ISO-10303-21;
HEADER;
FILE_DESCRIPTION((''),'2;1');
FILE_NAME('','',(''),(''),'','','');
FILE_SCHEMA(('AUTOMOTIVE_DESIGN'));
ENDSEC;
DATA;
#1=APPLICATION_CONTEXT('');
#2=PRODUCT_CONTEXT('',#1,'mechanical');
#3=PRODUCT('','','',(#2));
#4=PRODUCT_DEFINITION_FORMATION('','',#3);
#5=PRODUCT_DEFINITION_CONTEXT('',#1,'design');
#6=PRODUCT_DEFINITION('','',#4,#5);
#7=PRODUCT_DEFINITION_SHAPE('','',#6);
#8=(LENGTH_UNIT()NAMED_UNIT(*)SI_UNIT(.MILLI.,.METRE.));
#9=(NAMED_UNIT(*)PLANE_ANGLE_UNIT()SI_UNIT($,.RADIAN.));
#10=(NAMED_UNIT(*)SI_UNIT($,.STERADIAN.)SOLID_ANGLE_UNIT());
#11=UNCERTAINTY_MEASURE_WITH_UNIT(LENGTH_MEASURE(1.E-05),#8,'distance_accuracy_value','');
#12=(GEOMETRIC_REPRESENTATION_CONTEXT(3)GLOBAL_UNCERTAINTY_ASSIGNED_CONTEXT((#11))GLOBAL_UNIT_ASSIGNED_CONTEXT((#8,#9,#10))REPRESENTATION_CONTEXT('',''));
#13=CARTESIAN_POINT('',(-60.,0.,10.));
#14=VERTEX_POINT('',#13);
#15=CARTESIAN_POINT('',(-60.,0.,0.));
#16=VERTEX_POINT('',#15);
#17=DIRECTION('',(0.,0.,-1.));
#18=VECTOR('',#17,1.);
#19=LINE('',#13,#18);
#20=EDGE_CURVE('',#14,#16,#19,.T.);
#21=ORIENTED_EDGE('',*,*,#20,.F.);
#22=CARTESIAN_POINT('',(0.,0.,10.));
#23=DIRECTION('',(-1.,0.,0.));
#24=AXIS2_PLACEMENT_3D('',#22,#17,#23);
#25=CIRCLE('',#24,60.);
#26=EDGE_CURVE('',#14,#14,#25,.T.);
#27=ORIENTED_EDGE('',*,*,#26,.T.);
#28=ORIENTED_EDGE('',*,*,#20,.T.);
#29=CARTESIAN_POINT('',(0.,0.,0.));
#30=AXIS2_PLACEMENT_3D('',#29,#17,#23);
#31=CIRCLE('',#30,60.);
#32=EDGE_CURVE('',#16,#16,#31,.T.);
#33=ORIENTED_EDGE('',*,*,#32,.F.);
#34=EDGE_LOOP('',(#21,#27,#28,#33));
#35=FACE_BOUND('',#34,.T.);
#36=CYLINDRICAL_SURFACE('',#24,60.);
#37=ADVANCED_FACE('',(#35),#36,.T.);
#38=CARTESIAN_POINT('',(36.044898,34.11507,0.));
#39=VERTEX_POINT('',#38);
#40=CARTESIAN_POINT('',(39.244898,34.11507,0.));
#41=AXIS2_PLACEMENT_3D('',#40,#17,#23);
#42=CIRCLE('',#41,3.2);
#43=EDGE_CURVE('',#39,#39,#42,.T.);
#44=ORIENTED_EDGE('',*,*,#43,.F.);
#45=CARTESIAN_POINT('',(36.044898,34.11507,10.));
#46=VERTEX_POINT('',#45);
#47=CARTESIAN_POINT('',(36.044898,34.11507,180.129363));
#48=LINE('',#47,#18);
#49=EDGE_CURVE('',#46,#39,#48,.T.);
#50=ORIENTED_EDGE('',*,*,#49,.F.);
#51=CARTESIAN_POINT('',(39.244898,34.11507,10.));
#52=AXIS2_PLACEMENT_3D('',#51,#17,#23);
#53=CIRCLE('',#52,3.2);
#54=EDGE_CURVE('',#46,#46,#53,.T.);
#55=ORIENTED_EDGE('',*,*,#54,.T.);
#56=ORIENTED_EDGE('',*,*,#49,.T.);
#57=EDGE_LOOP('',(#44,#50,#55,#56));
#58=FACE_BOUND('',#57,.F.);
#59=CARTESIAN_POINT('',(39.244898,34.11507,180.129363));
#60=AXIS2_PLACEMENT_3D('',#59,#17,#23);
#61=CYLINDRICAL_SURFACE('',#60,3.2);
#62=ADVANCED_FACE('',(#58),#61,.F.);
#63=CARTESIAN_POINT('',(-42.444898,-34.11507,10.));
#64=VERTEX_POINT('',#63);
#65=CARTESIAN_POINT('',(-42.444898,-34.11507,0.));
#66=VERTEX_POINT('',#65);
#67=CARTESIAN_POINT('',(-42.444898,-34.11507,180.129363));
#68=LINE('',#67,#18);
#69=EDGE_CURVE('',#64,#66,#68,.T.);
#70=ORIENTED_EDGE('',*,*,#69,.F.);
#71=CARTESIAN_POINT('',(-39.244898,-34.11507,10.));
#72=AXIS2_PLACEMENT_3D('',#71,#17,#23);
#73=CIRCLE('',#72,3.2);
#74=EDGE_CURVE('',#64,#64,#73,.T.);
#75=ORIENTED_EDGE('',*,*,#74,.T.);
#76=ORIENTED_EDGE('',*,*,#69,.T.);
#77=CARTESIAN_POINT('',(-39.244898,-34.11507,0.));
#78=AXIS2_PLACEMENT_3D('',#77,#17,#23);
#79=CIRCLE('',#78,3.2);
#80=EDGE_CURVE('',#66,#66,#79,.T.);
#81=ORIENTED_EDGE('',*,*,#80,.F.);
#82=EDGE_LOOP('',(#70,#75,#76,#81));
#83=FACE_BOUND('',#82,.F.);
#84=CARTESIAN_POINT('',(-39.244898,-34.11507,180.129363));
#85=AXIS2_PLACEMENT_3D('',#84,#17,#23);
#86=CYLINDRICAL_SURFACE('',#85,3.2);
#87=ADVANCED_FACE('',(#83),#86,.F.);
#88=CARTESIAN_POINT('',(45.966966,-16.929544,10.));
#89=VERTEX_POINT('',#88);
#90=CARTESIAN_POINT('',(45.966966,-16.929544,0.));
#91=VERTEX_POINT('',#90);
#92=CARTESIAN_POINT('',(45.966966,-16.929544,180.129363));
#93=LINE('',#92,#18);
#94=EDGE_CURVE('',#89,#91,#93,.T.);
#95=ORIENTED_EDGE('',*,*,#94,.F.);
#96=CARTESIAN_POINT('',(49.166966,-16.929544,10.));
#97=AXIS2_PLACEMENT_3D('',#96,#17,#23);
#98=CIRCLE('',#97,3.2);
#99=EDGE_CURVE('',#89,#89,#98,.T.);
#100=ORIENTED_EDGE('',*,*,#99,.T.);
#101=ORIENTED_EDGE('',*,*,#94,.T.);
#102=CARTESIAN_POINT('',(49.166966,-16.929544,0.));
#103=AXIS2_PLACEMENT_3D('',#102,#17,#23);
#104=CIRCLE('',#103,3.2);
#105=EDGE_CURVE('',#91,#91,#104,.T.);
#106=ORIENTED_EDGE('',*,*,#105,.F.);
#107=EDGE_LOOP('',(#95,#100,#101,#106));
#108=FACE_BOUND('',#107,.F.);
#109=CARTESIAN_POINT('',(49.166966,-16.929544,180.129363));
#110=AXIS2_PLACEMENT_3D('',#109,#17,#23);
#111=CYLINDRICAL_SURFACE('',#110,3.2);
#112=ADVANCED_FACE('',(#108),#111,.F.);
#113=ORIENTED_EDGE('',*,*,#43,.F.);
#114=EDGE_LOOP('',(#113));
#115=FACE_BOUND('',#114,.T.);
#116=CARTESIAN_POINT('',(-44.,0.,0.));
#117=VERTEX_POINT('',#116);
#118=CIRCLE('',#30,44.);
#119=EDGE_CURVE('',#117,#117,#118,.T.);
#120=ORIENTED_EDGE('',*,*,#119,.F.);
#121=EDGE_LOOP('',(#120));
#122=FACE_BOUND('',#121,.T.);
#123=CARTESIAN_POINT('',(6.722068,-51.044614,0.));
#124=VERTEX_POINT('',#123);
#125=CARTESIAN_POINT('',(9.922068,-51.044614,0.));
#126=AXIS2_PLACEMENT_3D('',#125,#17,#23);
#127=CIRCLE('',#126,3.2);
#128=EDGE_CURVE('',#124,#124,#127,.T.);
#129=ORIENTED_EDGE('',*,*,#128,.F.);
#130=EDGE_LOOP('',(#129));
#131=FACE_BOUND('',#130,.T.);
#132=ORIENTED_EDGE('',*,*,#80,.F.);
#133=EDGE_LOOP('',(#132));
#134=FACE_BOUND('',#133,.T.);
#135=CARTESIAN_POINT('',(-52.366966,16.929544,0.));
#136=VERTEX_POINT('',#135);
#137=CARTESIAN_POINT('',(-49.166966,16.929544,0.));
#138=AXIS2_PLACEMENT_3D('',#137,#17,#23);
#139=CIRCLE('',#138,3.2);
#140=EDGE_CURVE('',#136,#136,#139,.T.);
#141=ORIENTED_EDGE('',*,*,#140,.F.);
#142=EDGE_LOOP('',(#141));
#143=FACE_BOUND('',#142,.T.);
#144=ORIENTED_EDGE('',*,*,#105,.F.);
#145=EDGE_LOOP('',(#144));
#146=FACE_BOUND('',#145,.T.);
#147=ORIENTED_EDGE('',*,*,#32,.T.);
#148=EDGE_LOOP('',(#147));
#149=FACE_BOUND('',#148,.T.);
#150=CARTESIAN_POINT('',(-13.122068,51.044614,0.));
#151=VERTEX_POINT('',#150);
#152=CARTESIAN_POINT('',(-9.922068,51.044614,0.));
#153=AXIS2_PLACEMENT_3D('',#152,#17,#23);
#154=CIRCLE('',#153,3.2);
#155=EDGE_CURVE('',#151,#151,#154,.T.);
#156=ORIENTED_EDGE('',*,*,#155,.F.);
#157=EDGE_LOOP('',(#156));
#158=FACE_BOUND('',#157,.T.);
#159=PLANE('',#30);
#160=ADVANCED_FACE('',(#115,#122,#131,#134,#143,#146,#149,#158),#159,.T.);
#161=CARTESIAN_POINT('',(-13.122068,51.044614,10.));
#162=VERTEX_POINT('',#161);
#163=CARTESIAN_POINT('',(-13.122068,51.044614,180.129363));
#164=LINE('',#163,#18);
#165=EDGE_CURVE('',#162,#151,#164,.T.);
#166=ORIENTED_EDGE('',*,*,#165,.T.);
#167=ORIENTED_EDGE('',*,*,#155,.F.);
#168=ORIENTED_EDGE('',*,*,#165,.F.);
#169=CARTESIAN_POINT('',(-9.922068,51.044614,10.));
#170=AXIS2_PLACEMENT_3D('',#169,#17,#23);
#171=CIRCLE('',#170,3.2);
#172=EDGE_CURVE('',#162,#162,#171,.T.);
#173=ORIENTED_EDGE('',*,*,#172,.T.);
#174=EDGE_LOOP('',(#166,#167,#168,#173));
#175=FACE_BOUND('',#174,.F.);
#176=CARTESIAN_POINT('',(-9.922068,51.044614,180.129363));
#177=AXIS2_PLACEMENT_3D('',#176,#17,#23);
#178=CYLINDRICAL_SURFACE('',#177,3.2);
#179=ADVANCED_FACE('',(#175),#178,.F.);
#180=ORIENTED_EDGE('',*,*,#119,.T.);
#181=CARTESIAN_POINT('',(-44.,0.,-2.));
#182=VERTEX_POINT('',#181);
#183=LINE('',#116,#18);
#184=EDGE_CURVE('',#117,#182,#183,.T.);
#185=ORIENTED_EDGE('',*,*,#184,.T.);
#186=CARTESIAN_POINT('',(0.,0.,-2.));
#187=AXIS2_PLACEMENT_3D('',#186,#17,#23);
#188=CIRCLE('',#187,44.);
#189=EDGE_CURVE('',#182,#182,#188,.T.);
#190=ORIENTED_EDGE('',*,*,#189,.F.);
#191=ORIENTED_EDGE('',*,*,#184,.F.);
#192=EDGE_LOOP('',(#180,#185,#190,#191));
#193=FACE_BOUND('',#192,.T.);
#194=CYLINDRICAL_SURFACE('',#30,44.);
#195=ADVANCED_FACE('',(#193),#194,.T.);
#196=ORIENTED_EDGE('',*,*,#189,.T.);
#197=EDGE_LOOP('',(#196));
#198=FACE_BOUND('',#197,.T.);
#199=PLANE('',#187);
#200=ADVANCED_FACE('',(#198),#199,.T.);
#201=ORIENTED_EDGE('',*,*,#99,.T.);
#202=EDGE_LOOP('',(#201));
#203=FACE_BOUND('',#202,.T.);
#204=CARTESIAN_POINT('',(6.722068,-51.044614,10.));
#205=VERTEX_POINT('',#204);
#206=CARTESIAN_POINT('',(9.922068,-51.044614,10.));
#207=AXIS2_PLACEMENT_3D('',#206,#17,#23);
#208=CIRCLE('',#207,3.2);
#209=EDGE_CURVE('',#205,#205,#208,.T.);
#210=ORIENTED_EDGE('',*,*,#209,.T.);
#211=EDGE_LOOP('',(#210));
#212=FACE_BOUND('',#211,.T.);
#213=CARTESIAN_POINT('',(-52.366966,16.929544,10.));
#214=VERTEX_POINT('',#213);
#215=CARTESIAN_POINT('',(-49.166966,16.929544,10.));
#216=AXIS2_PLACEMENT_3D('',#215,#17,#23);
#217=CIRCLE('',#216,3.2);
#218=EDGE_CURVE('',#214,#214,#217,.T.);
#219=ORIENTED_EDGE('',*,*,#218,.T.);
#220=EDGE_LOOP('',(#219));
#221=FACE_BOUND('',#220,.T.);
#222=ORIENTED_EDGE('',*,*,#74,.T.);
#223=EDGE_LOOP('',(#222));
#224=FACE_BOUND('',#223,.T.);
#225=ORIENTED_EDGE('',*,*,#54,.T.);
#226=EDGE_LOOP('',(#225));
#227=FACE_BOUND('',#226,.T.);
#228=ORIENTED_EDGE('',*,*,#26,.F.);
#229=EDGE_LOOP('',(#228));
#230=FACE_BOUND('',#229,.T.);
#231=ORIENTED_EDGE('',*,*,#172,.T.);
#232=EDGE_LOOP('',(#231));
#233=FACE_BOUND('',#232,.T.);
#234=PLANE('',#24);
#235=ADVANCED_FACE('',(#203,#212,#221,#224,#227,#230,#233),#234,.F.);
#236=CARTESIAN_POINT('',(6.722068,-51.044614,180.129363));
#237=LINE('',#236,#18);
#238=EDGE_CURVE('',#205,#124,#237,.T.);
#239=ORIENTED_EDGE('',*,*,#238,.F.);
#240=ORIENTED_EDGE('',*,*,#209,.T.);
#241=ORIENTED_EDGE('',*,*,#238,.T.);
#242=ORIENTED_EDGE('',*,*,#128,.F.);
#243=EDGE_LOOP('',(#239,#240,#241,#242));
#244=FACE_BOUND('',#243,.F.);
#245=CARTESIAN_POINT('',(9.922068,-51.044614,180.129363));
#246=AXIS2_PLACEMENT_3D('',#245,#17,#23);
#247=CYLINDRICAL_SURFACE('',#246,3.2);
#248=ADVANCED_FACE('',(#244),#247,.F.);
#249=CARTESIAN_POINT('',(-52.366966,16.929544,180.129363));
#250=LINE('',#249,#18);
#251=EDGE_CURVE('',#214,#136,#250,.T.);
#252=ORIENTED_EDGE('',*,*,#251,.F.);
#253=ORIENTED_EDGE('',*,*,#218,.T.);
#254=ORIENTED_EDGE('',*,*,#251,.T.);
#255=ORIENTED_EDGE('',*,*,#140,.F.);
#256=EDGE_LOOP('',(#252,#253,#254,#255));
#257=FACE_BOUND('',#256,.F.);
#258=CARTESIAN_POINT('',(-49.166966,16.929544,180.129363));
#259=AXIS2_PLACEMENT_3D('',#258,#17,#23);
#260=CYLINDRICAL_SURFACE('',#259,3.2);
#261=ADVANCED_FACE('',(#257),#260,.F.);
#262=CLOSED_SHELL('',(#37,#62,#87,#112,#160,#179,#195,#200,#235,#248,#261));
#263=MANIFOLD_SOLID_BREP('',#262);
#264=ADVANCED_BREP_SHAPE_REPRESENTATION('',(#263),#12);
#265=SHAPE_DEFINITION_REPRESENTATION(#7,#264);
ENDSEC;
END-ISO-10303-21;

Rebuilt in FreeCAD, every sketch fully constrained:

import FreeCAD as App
import Part
import Sketcher


def add_polygon(sketch, points):
    """Adds a closed chain of lines whose ends are joined by coincident constraints."""
    first, n = sketch.GeometryCount, len(points)
    for a, b in zip(points, points[1:] + points[:1]):
        sketch.addGeometry(Part.LineSegment(App.Vector(*a, 0), App.Vector(*b, 0)), False)
    for i in range(n):
        sketch.addConstraint(Sketcher.Constraint("Coincident", first + i, 2, first + (i + 1) % n, 1))

doc = App.newDocument("Part")
params = doc.addObject("Spreadsheet::Sheet", "Params")
for row, (alias, value) in enumerate([
    ("sketch1_width", "60 mm"),
    ("sketch1_width2", "16 mm"),
    ("sketch1_height", "12 mm"),
    ("sketch1_height2", "10 mm"),
    ("revolution_angle", "360 deg"),
    ("sketch2_diameter", "6.4 mm"),
    ("hole_diameter", "6.4 mm"),
], start=1):
    params.set(f"A{row}", alias)
    params.set(f"B{row}", "=" + value)
    params.setAlias(f"B{row}", alias)

body = doc.addObject("PartDesign::Body", "Body")

# Sketch on XZ plane
sketch1 = body.newObject("Sketcher::SketchObject", "Sketch")
sketch1.AttachmentSupport = (doc.getObject("XZ_Plane"), [""])
sketch1.MapMode = "FlatFace"
add_polygon(sketch1, [(0, -2), (0, 10), (-60, 10), (-60, 0), (-44, 0), (-44, -2)])  # lines 0-5
sketch1.addConstraint([
    Sketcher.Constraint("Vertical", 0),
    Sketcher.Constraint("Horizontal", 1),
    Sketcher.Constraint("Vertical", 2),
    Sketcher.Constraint("Horizontal", 3),
    Sketcher.Constraint("Vertical", 4),
    Sketcher.Constraint("Horizontal", 5),
    Sketcher.Constraint("PointOnObject", 0, 2, -2),
    Sketcher.Constraint("PointOnObject", 2, 2, -1),
    Sketcher.Constraint("DistanceX", 1, 2, 1, 1, 60.0),
    Sketcher.Constraint("DistanceX", 3, 1, 3, 2, 16.0),
    Sketcher.Constraint("DistanceY", 0, 1, 0, 2, 12.0),
    Sketcher.Constraint("DistanceY", 2, 2, 2, 1, 10.0),
])
sketch1.setExpression("Constraints[14]", "Params.sketch1_width")
sketch1.setExpression("Constraints[15]", "Params.sketch1_width2")
sketch1.setExpression("Constraints[16]", "Params.sketch1_height")
sketch1.setExpression("Constraints[17]", "Params.sketch1_height2")
revolution = body.newObject("PartDesign::Revolution", "Revolution")
revolution.Profile = sketch1
revolution.ReferenceAxis = (sketch1, ["V_Axis"])
revolution.setExpression("Angle", "Params.revolution_angle")

# Sketch on XY plane
sketch2 = body.newObject("Sketcher::SketchObject", "Sketch001")
sketch2.AttachmentSupport = (doc.getObject("XY_Plane"), [""])
sketch2.MapMode = "FlatFace"
sketch2.AttachmentOffset = App.Placement(App.Vector(0, 0, 10), App.Rotation())
sketch2.addGeometry([
    Part.Circle(App.Vector(-9.922068, 51.044614, 0), App.Vector(0, 0, 1), 3.2),  # 0
    Part.Circle(App.Vector(-49.166966, 16.929544, 0), App.Vector(0, 0, 1), 3.2),  # 1
    Part.Circle(App.Vector(-39.244898, -34.11507, 0), App.Vector(0, 0, 1), 3.2),  # 2
    Part.Circle(App.Vector(9.922068, -51.044614, 0), App.Vector(0, 0, 1), 3.2),  # 3
    Part.Circle(App.Vector(49.166966, -16.929544, 0), App.Vector(0, 0, 1), 3.2),  # 4
    Part.Circle(App.Vector(39.244898, 34.11507, 0), App.Vector(0, 0, 1), 3.2),  # 5
], False)
sketch2.addConstraint([
    Sketcher.Constraint("Equal", 0, 1),
    Sketcher.Constraint("Equal", 1, 2),
    Sketcher.Constraint("Equal", 2, 3),
    Sketcher.Constraint("Equal", 3, 4),
    Sketcher.Constraint("Equal", 4, 5),
    Sketcher.Constraint("Symmetric", 0, 3, 3, 3, -1, 1),
    Sketcher.Constraint("Symmetric", 1, 3, 4, 3, -1, 1),
    Sketcher.Constraint("Symmetric", 2, 3, 5, 3, -1, 1),
    Sketcher.Constraint("Diameter", 0, 6.4),
    Sketcher.Constraint("DistanceX", 1, 3, 0, 3, 39.244898),
    Sketcher.Constraint("DistanceY", 2, 3, -1, 1, 34.11507),
    Sketcher.Constraint("DistanceY", 1, 3, 0, 3, 34.11507),
    Sketcher.Constraint("DistanceX", 1, 3, 2, 3, 9.922068),
    Sketcher.Constraint("DistanceY", 3, 3, 1, 3, 67.974158),
    Sketcher.Constraint("DistanceX", 0, 3, -1, 1, 9.922068),
])
sketch2.setExpression("Constraints[8]", "Params.sketch2_diameter")
doc.recompute()
hole = body.newObject("PartDesign::Hole", "Hole")
hole.Profile = sketch2
hole.ThreadType = "None"
hole.setExpression("Diameter", "Params.hole_diameter")
hole.DepthType = "ThroughAll"

doc.recompute()
